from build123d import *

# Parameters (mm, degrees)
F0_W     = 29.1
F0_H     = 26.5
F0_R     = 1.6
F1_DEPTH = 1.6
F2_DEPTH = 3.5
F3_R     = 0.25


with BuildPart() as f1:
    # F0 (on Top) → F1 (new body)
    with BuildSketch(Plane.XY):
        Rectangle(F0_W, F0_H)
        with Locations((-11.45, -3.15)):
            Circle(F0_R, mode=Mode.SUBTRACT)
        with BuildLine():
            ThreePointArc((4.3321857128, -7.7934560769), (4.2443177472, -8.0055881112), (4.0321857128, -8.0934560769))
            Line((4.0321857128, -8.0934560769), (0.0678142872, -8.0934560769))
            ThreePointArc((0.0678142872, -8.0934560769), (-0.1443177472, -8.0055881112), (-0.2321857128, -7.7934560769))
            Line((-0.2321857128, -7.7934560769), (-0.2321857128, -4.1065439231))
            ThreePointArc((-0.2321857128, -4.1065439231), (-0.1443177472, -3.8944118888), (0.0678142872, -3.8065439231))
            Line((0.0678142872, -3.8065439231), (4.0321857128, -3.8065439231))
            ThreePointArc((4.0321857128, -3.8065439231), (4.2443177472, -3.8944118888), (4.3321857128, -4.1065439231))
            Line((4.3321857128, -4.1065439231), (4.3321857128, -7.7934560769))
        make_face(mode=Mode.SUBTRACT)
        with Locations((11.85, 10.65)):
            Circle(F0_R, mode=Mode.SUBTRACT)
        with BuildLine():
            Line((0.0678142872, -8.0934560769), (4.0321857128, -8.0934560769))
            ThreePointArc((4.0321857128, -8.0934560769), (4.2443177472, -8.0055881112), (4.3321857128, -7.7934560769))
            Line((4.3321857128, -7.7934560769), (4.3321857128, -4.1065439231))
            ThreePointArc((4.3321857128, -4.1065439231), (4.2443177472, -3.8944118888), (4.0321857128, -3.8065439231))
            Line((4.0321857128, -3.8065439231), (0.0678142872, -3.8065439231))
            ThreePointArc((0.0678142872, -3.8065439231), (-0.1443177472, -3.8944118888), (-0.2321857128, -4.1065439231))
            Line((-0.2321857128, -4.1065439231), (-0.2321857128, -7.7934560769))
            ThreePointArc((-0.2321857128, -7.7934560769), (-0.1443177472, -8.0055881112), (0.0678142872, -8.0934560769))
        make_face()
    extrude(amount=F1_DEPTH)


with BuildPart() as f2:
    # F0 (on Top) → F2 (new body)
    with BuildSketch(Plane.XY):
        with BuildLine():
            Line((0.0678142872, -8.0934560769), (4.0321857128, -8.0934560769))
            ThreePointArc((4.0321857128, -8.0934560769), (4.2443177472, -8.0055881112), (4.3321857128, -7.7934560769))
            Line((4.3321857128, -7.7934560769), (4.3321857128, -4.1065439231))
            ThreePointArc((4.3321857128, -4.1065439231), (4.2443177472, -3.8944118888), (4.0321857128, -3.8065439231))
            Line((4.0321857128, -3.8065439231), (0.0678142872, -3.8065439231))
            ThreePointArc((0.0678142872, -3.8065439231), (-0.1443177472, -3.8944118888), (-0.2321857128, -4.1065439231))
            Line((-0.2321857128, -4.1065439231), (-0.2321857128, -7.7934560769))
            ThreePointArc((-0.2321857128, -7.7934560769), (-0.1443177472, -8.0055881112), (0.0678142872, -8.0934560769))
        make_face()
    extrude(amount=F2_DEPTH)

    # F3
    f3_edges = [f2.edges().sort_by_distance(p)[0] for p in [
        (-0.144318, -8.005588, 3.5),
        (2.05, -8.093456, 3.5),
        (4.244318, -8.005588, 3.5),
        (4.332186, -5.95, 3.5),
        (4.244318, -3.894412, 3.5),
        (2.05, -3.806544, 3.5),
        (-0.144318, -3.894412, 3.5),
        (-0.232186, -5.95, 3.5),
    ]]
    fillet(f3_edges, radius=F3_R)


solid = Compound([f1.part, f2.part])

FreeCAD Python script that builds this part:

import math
import FreeCAD as App
import Part
import Sketcher

V = App.Vector


def edges_at(feature, points):
    """Names of the edges that pass closest to the given points."""
    edges = feature.Shape.Edges
    near = lambda p: min(range(len(edges)), key=lambda i: edges[i].distToShape(Part.Vertex(*p))[0])
    return sorted({f"Edge{near(p) + 1}" for p in points})


def add_polygon(sketch, points):
    """Adds a closed chain of lines whose ends are joined by coincident constraints."""
    first, n = sketch.GeometryCount, len(points)
    for a, b in zip(points, points[1:] + points[:1]):
        sketch.addGeometry(Part.LineSegment(App.Vector(*a, 0), App.Vector(*b, 0)), False)
    for i in range(n):
        sketch.addConstraint(Sketcher.Constraint("Coincident", first + i, 2, first + (i + 1) % n, 1))

doc = App.newDocument("Part")
body = doc.addObject("PartDesign::Body", "Body")

sketch1 = body.newObject("Sketcher::SketchObject", "Sketch")
sketch1.AttachmentSupport = (doc.getObject("XY_Plane"), [""])
sketch1.MapMode = "FlatFace"
add_polygon(sketch1, [(-14.6, 13.2), (-14.6, -13.2), (14.6, -13.2), (14.6, 13.2)])
sketch1.addGeometry(Part.Circle(V(-11.4, -3.1, 0), V(0, 0, 1), 1.6), False)
sketch1.addGeometry(Part.Circle(V(11.8, 10.7, 0), V(0, 0, 1), 1.6), False)
sketch1.addConstraint([
    Sketcher.Constraint("Vertical", 0),
    Sketcher.Constraint("Horizontal", 1),
    Sketcher.Constraint("Vertical", 2),
    Sketcher.Constraint("Horizontal", 3),
    Sketcher.Constraint("Equal", 4, 5),
    Sketcher.Constraint("Symmetric", 0, 2, 2, 2, -1, 1),
    Sketcher.Constraint("Diameter", 4, 3.2),
    Sketcher.Constraint("DistanceX", 1, 1, 1, 2, 29.1),
    Sketcher.Constraint("DistanceY", 0, 2, 0, 1, 26.5),
    Sketcher.Constraint("DistanceX", 4, 3, 1, 2, 26.0),
    Sketcher.Constraint("DistanceX", 4, 3, 5, 3, 23.3),
    Sketcher.Constraint("DistanceY", 4, 3, 5, 3, 13.8),
    Sketcher.Constraint("DistanceY", 0, 2, 4, 3, 10.1),
])
pad1 = body.newObject("PartDesign::Pad", "Pad")
pad1.Profile = sketch1
pad1.Length = 1.6
body2 = doc.addObject("PartDesign::Body", "Body001")

sketch2 = body2.newObject("Sketcher::SketchObject", "Sketch001")
sketch2.AttachmentSupport = (doc.getObject("XY_Plane001"), [""])
sketch2.MapMode = "FlatFace"
sketch2.addGeometry([
    Part.LineSegment(V(0.07, -8.09, 0), V(4.03, -8.09, 0)),
    Part.ArcOfCircle(Part.Circle(V(4.03, -7.79, 0), V(0, 0, 1), 0.3), math.radians(-90), math.radians(0)),
    Part.LineSegment(V(4.33, -7.79, 0), V(4.33, -4.11, 0)),
    Part.ArcOfCircle(Part.Circle(V(4.03, -4.11, 0), V(0, 0, 1), 0.3), math.radians(0), math.radians(90)),
    Part.LineSegment(V(4.03, -3.81, 0), V(0.07, -3.81, 0)),
    Part.ArcOfCircle(Part.Circle(V(0.07, -4.11, 0), V(0, 0, 1), 0.3), math.radians(90), math.radians(180)),
    Part.LineSegment(V(-0.23, -4.11, 0), V(-0.23, -7.79, 0)),
    Part.ArcOfCircle(Part.Circle(V(0.07, -7.79, 0), V(0, 0, 1), 0.3), math.radians(180), math.radians(270)),
], False)
sketch2.addConstraint([
    Sketcher.Constraint("Tangent", 0, 2, 1, 1),
    Sketcher.Constraint("Tangent", 1, 2, 2, 1),
    Sketcher.Constraint("Tangent", 2, 2, 3, 1),
    Sketcher.Constraint("Tangent", 3, 2, 4, 1),
    Sketcher.Constraint("Tangent", 4, 2, 5, 1),
    Sketcher.Constraint("Tangent", 5, 2, 6, 1),
    Sketcher.Constraint("Tangent", 6, 2, 7, 1),
    Sketcher.Constraint("Tangent", 7, 2, 0, 1),
    Sketcher.Constraint("Horizontal", 0),
    Sketcher.Constraint("Vertical", 2),
    Sketcher.Constraint("Horizontal", 4),
    Sketcher.Constraint("Vertical", 6),
    Sketcher.Constraint("Equal", 1, 3),
    Sketcher.Constraint("Equal", 3, 5),
    Sketcher.Constraint("Equal", 5, 7),
    Sketcher.Constraint("Radius", 1, 0.3),
    Sketcher.Constraint("DistanceX", 0, 1, 0, 2, 3.964371),
    Sketcher.Constraint("DistanceY", 2, 1, 2, 2, 3.686912),
    Sketcher.Constraint("DistanceX", -1, 1, 1, 3, 4.032186),
    Sketcher.Constraint("DistanceY", 1, 3, -1, 1, 7.793456),
])
pad2 = body2.newObject("PartDesign::Pad", "Pad001")
pad2.Profile = sketch2
pad2.Length = 3.5
doc.recompute()

fillet = body2.newObject("PartDesign::Fillet", "Fillet")
fillet.Base = (pad2, edges_at(pad2, [
    (-0.144, -8.006, 3.5),
    (2.05, -8.093, 3.5),
    (4.244, -8.006, 3.5),
    (4.332, -5.95, 3.5),
    (4.244, -3.894, 3.5),
    (2.05, -3.807, 3.5),
    (-0.144, -3.894, 3.5),
    (-0.232, -5.95, 3.5),
]))
fillet.Radius = 0.25

doc.recompute()
